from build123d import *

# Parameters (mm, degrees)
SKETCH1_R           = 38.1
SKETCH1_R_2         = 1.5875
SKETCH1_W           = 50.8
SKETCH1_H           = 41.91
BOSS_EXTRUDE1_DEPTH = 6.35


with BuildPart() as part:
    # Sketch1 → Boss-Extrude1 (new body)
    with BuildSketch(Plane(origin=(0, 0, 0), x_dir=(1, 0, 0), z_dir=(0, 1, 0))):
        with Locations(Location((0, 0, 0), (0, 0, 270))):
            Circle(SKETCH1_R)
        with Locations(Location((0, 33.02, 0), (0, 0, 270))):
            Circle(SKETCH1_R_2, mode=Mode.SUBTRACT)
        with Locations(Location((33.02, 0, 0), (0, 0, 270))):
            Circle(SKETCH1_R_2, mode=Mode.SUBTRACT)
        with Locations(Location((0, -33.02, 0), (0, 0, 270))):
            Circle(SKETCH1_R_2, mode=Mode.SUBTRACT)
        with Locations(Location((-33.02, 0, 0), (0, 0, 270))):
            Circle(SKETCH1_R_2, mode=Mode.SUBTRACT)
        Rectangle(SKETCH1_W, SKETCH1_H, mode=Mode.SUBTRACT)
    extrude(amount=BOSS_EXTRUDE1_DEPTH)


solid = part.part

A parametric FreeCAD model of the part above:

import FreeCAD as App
import Part
import Sketcher
Q = App.Units.Quantity

doc = App.newDocument("Part")
params = doc.addObject("Spreadsheet::Sheet", "Params")
for row, (alias, value) in enumerate([
    ("sketch1_diameter", "3 in"),
    ("sketch1_width", "2 in"),
    ("sketch1_diameter2", "0.125 in"),
    ("sketch1_height", "1.65 in"),
    ("pad1_length", "0.25 in"),
], start=1):
    params.set(f"A{row}", alias)
    params.set(f"B{row}", "=" + value)
    params.setAlias(f"B{row}", alias)

body = doc.addObject("PartDesign::Body", "Body")

# Sketch on XZ plane
sketch1 = body.newObject("Sketcher::SketchObject", "Sketch")
sketch1.AttachmentSupport = (doc.getObject("XZ_Plane"), [""])
sketch1.MapMode = "FlatFace"
sketch1.addGeometry(Part.Circle(App.Vector(0, 0, 0), App.Vector(0, 0, 1), 38.1), False)
sketch1.addGeometry(Part.Circle(App.Vector(0, -33, 0), App.Vector(0, 0, 1), 1.6), False)
sketch1.addGeometry(Part.Circle(App.Vector(-33, 0, 0), App.Vector(0, 0, 1), 1.6), False)
sketch1.addGeometry(Part.Circle(App.Vector(33, 0, 0), App.Vector(0, 0, 1), 1.6), False)
sketch1.addGeometry(Part.LineSegment(App.Vector(25.4, 21, 0), App.Vector(-25.4, 21, 0)), False)
sketch1.addGeometry(Part.LineSegment(App.Vector(-25.4, 21, 0), App.Vector(-25.4, -21, 0)), False)
sketch1.addGeometry(Part.LineSegment(App.Vector(-25.4, -21, 0), App.Vector(25.4, -21, 0)), False)
sketch1.addGeometry(Part.LineSegment(App.Vector(25.4, -21, 0), App.Vector(25.4, 21, 0)), False)
sketch1.addGeometry(Part.Circle(App.Vector(0, 33, 0), App.Vector(0, 0, 1), 1.6), False)
sketch1.addConstraint(Sketcher.Constraint("Coincident", 4, 2, 5, 1))
sketch1.addConstraint(Sketcher.Constraint("Coincident", 5, 2, 6, 1))
sketch1.addConstraint(Sketcher.Constraint("Coincident", 6, 2, 7, 1))
sketch1.addConstraint(Sketcher.Constraint("Coincident", 7, 2, 4, 1))
sketch1.addConstraint(Sketcher.Constraint("Horizontal", 4))
sketch1.addConstraint(Sketcher.Constraint("Vertical", 5))
sketch1.addConstraint(Sketcher.Constraint("Horizontal", 6))
sketch1.addConstraint(Sketcher.Constraint("Vertical", 7))
sketch1.addConstraint(Sketcher.Constraint("Coincident", 0, 3, -1, 1))
sketch1.addConstraint(Sketcher.Constraint("Equal", 1, 2))
sketch1.addConstraint(Sketcher.Constraint("Equal", 2, 3))
sketch1.addConstraint(Sketcher.Constraint("Equal", 3, 8))
sketch1.addConstraint(Sketcher.Constraint("Symmetric", 2, 3, 3, 3, -1, 1))
sketch1.addConstraint(Sketcher.Constraint("Symmetric", 1, 3, 8, 3, -1, 1))
sketch1.addConstraint(Sketcher.Constraint("Symmetric", 4, 2, 6, 2, -1, 1))
sketch1.addConstraint(Sketcher.Constraint("PointOnObject", 1, 3, -2))
sketch1.addConstraint(Sketcher.Constraint("PointOnObject", 2, 3, -1))
sketch1.addConstraint(Sketcher.Constraint("Diameter", 0, Q("3 in")))
sketch1.addConstraint(Sketcher.Constraint("DistanceX", 4, 2, 4, 1, Q("2 in")))
sketch1.addConstraint(Sketcher.Constraint("Diameter", 1, Q("0.125 in")))
sketch1.addConstraint(Sketcher.Constraint("DistanceY", 5, 2, 5, 1, Q("1.65 in")))
sketch1.addConstraint(Sketcher.Constraint("DistanceY", 1, 3, -1, 1, Q("1.3 in")))
sketch1.addConstraint(Sketcher.Constraint("DistanceX", 2, 3, -1, 1, Q("1.3 in")))
sketch1.setExpression("Constraints[17]", "Params.sketch1_diameter")
sketch1.setExpression("Constraints[18]", "Params.sketch1_width")
sketch1.setExpression("Constraints[19]", "Params.sketch1_diameter2")
sketch1.setExpression("Constraints[20]", "Params.sketch1_height")
pad1 = body.newObject("PartDesign::Pad", "Pad")
pad1.Profile = sketch1
pad1.setExpression("Length", "Params.pad1_length")
pad1.Reversed = True

doc.recompute()
